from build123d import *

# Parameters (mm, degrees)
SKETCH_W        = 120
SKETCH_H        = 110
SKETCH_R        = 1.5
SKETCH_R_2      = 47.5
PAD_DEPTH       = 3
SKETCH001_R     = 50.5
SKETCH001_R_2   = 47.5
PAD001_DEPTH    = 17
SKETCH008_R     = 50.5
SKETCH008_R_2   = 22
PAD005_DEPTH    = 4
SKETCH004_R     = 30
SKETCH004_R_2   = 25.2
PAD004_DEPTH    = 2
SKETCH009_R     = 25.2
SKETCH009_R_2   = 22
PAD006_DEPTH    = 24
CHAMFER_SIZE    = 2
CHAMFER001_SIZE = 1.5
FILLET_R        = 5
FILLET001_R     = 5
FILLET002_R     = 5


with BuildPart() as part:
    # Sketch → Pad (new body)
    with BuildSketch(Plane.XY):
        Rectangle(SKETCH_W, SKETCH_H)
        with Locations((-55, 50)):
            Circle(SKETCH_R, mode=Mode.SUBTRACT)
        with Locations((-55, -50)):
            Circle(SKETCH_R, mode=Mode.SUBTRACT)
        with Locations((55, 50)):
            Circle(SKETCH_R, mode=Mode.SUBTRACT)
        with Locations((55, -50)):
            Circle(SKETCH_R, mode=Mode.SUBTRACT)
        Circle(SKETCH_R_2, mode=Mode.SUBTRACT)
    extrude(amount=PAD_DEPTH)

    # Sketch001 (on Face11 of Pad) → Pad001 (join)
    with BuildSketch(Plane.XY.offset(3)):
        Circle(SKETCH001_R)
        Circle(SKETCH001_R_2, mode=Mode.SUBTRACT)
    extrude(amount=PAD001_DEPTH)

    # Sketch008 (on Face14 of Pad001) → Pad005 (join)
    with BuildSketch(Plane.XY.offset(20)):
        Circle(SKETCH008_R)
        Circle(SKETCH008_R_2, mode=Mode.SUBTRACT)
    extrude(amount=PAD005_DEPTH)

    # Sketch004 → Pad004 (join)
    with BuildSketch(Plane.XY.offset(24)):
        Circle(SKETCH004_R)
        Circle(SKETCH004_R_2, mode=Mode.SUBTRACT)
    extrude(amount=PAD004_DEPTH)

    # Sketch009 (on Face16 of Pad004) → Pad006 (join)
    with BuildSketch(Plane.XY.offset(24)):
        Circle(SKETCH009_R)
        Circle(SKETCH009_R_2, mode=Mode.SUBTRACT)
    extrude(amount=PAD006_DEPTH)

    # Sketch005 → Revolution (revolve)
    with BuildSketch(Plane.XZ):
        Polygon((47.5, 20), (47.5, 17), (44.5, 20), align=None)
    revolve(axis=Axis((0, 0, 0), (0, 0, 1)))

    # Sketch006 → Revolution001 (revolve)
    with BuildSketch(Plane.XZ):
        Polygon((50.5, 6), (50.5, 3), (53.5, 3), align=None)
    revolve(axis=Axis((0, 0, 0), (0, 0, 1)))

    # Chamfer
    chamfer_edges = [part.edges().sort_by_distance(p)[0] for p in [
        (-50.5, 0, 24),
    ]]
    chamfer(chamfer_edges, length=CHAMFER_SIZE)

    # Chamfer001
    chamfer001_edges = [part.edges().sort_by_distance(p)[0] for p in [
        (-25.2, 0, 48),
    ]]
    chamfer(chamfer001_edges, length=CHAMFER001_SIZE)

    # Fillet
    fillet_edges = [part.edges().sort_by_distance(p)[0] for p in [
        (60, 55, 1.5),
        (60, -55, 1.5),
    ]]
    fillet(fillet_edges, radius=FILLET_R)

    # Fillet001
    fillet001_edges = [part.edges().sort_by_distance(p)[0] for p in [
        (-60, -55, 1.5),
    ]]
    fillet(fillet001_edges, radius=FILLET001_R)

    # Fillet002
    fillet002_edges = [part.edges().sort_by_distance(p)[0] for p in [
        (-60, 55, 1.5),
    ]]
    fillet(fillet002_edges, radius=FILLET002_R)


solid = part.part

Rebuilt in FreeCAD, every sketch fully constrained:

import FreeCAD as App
import Part
import Sketcher
from FreeCAD import Vector
Q = App.Units.Quantity


def edges_at(feature, points):
    """Names of the edges that pass closest to the given points."""
    edges = feature.Shape.Edges
    near = lambda p: min(range(len(edges)), key=lambda i: edges[i].distToShape(Part.Vertex(*p))[0])
    return sorted({f"Edge{near(p) + 1}" for p in points})

doc = App.newDocument("Part")
body = doc.addObject("PartDesign::Body", "Body")

# Sketch on XY plane
sketch1 = body.newObject("Sketcher::SketchObject", "Sketch")
sketch1.AttachmentSupport = (doc.getObject("XY_Plane"), [""])
sketch1.MapMode = "FlatFace"
sketch1.addGeometry(Part.LineSegment(Vector(-60, 55, 0), Vector(-60, -55, 0)), False)
sketch1.addGeometry(Part.LineSegment(Vector(-60, -55, 0), Vector(60, -55, 0)), False)
sketch1.addGeometry(Part.LineSegment(Vector(60, -55, 0), Vector(60, 55, 0)), False)
sketch1.addGeometry(Part.LineSegment(Vector(60, 55, 0), Vector(-60, 55, 0)), False)
sketch1.addGeometry(Part.Circle(Vector(-55, -50, 0), Vector(0, 0, 1), 1.5), False)
sketch1.addGeometry(Part.Circle(Vector(55, -50, 0), Vector(0, 0, 1), 1.5), False)
sketch1.addGeometry(Part.Circle(Vector(0, 0, 0), Vector(0, 0, 1), 47.5), False)
sketch1.addGeometry(Part.Circle(Vector(-55, 50, 0), Vector(0, 0, 1), 1.5), False)
sketch1.addGeometry(Part.Circle(Vector(55, 50, 0), Vector(0, 0, 1), 1.5), False)
sketch1.addConstraint(Sketcher.Constraint("Coincident", 0, 2, 1, 1))
sketch1.addConstraint(Sketcher.Constraint("Coincident", 1, 2, 2, 1))
sketch1.addConstraint(Sketcher.Constraint("Coincident", 2, 2, 3, 1))
sketch1.addConstraint(Sketcher.Constraint("Coincident", 3, 2, 0, 1))
sketch1.addConstraint(Sketcher.Constraint("Vertical", 0))
sketch1.addConstraint(Sketcher.Constraint("Horizontal", 1))
sketch1.addConstraint(Sketcher.Constraint("Vertical", 2))
sketch1.addConstraint(Sketcher.Constraint("Horizontal", 3))
sketch1.addConstraint(Sketcher.Constraint("Coincident", 6, 3, -1, 1))
sketch1.addConstraint(Sketcher.Constraint("Equal", 4, 5))
sketch1.addConstraint(Sketcher.Constraint("Equal", 5, 7))
sketch1.addConstraint(Sketcher.Constraint("Equal", 7, 8))
sketch1.addConstraint(Sketcher.Constraint("Symmetric", 5, 3, 7, 3, -1, 1))
sketch1.addConstraint(Sketcher.Constraint("Symmetric", 4, 3, 8, 3, -1, 1))
sketch1.addConstraint(Sketcher.Constraint("Symmetric", 0, 2, 2, 2, -1, 1))
sketch1.addConstraint(Sketcher.Constraint("Symmetric", 4, 3, 5, 3, -2))
sketch1.addConstraint(Sketcher.Constraint("Diameter", 4, Q("3 mm")))
sketch1.addConstraint(Sketcher.Constraint("Diameter", 6, Q("95 mm")))
sketch1.addConstraint(Sketcher.Constraint("DistanceX", 1, 1, 1, 2, Q("120 mm")))
sketch1.addConstraint(Sketcher.Constraint("DistanceY", 0, 2, 0, 1, Q("110 mm")))
sketch1.addConstraint(Sketcher.Constraint("DistanceX", 4, 3, -1, 1, Q("55 mm")))
sketch1.addConstraint(Sketcher.Constraint("DistanceY", 4, 3, -1, 1, Q("50 mm")))
pad1 = body.newObject("PartDesign::Pad", "Pad")
pad1.Profile = sketch1
pad1.Length = 3

# Sketch on XY plane
sketch2 = body.newObject("Sketcher::SketchObject", "Sketch001")
sketch2.AttachmentSupport = (doc.getObject("XY_Plane"), [""])
sketch2.MapMode = "FlatFace"
sketch2.AttachmentOffset = App.Placement(Vector(0, 0, 3), App.Rotation())
sketch2.addGeometry(Part.Circle(Vector(0, 0, 0), Vector(0, 0, 1), 50), False)
sketch2.addGeometry(Part.Circle(Vector(0, 0, 0), Vector(0, 0, 1), 48), False)
sketch2.addConstraint(Sketcher.Constraint("Coincident", 0, 3, -1, 1))
sketch2.addConstraint(Sketcher.Constraint("Coincident", 1, 3, -1, 1))
sketch2.addConstraint(Sketcher.Constraint("Diameter", 0, Q("101 mm")))
sketch2.addConstraint(Sketcher.Constraint("Diameter", 1, Q("95 mm")))
pad2 = body.newObject("PartDesign::Pad", "Pad001")
pad2.Profile = sketch2
pad2.Length = 17

# Sketch on XY plane
sketch3 = body.newObject("Sketcher::SketchObject", "Sketch002")
sketch3.AttachmentSupport = (doc.getObject("XY_Plane"), [""])
sketch3.MapMode = "FlatFace"
sketch3.AttachmentOffset = App.Placement(Vector(0, 0, 20), App.Rotation())
sketch3.addGeometry(Part.Circle(Vector(0, 0, 0), Vector(0, 0, 1), 50), False)
sketch3.addGeometry(Part.Circle(Vector(0, 0, 0), Vector(0, 0, 1), 22), False)
sketch3.addConstraint(Sketcher.Constraint("Coincident", 0, 3, -1, 1))
sketch3.addConstraint(Sketcher.Constraint("Coincident", 1, 3, -1, 1))
sketch3.addConstraint(Sketcher.Constraint("Diameter", 0, Q("101 mm")))
sketch3.addConstraint(Sketcher.Constraint("Diameter", 1, Q("44 mm")))
pad3 = body.newObject("PartDesign::Pad", "Pad002")
pad3.Profile = sketch3
pad3.Length = 4

# Sketch on XY plane
sketch4 = body.newObject("Sketcher::SketchObject", "Sketch003")
sketch4.AttachmentSupport = (doc.getObject("XY_Plane"), [""])
sketch4.MapMode = "FlatFace"
sketch4.AttachmentOffset = App.Placement(Vector(0, 0, 24), App.Rotation())
sketch4.addGeometry(Part.Circle(Vector(0, 0, 0), Vector(0, 0, 1), 30), False)
sketch4.addGeometry(Part.Circle(Vector(0, 0, 0), Vector(0, 0, 1), 25), False)
sketch4.addConstraint(Sketcher.Constraint("Coincident", 0, 3, -1, 1))
sketch4.addConstraint(Sketcher.Constraint("Coincident", 1, 3, -1, 1))
sketch4.addConstraint(Sketcher.Constraint("Diameter", 0, Q("60 mm")))
sketch4.addConstraint(Sketcher.Constraint("Diameter", 1, Q("50.4 mm")))
pad4 = body.newObject("PartDesign::Pad", "Pad003")
pad4.Profile = sketch4
pad4.Length = 2

# Sketch on XY plane
sketch5 = body.newObject("Sketcher::SketchObject", "Sketch004")
sketch5.AttachmentSupport = (doc.getObject("XY_Plane"), [""])
sketch5.MapMode = "FlatFace"
sketch5.AttachmentOffset = App.Placement(Vector(0, 0, 24), App.Rotation())
sketch5.addGeometry(Part.Circle(Vector(0, 0, 0), Vector(0, 0, 1), 25), False)
sketch5.addGeometry(Part.Circle(Vector(0, 0, 0), Vector(0, 0, 1), 22), False)
sketch5.addConstraint(Sketcher.Constraint("Coincident", 0, 3, -1, 1))
sketch5.addConstraint(Sketcher.Constraint("Coincident", 1, 3, -1, 1))
sketch5.addConstraint(Sketcher.Constraint("Diameter", 1, Q("44 mm")))
sketch5.addConstraint(Sketcher.Constraint("Diameter", 0, Q("50.4 mm")))
pad5 = body.newObject("PartDesign::Pad", "Pad004")
pad5.Profile = sketch5
pad5.Length = 24

# Sketch on XZ plane
sketch6 = body.newObject("Sketcher::SketchObject", "Sketch005")
sketch6.AttachmentSupport = (doc.getObject("XZ_Plane"), [""])
sketch6.MapMode = "FlatFace"
sketch6.addGeometry(Part.LineSegment(Vector(47.5, 17, 0), Vector(47.5, 20, 0)), False)
sketch6.addGeometry(Part.LineSegment(Vector(47.5, 20, 0), Vector(44.5, 20, 0)), False)
sketch6.addGeometry(Part.LineSegment(Vector(44.5, 20, 0), Vector(47.5, 17, 0)), False)
sketch6.addConstraint(Sketcher.Constraint("Coincident", 0, 2, 1, 1))
sketch6.addConstraint(Sketcher.Constraint("Coincident", 1, 2, 2, 1))
sketch6.addConstraint(Sketcher.Constraint("Coincident", 2, 2, 0, 1))
sketch6.addConstraint(Sketcher.Constraint("Vertical", 0))
sketch6.addConstraint(Sketcher.Constraint("Horizontal", 1))
sketch6.addConstraint(Sketcher.Constraint("Equal", 1, 0))
sketch6.addConstraint(Sketcher.Constraint("DistanceX", 1, 2, 1, 1, Q("3 mm")))
sketch6.addConstraint(Sketcher.Constraint("DistanceY", -1, 1, 0, 2, Q("20 mm")))
sketch6.addConstraint(Sketcher.Constraint("DistanceX", -1, 1, 0, 2, Q("47.5 mm")))
revolution = body.newObject("PartDesign::Revolution", "Revolution")
revolution.Profile = sketch6
revolution.ReferenceAxis = (sketch6, ["V_Axis"])
revolution.Angle = 360

# Sketch on XZ plane
sketch7 = body.newObject("Sketcher::SketchObject", "Sketch006")
sketch7.AttachmentSupport = (doc.getObject("XZ_Plane"), [""])
sketch7.MapMode = "FlatFace"
sketch7.addGeometry(Part.LineSegment(Vector(50.5, 6, 0), Vector(50.5, 3, 0)), False)
sketch7.addGeometry(Part.LineSegment(Vector(50.5, 3, 0), Vector(53.5, 3, 0)), False)
sketch7.addGeometry(Part.LineSegment(Vector(53.5, 3, 0), Vector(50.5, 6, 0)), False)
sketch7.addConstraint(Sketcher.Constraint("Coincident", 0, 2, 1, 1))
sketch7.addConstraint(Sketcher.Constraint("Coincident", 1, 2, 2, 1))
sketch7.addConstraint(Sketcher.Constraint("Coincident", 2, 2, 0, 1))
sketch7.addConstraint(Sketcher.Constraint("Vertical", 0))
sketch7.addConstraint(Sketcher.Constraint("Horizontal", 1))
sketch7.addConstraint(Sketcher.Constraint("Equal", 1, 0))
sketch7.addConstraint(Sketcher.Constraint("DistanceX", 1, 1, 1, 2, Q("3 mm")))
sketch7.addConstraint(Sketcher.Constraint("DistanceY", -1, 1, 0, 2, Q("3 mm")))
sketch7.addConstraint(Sketcher.Constraint("DistanceX", -1, 1, 0, 2, Q("50.5 mm")))
revolution2 = body.newObject("PartDesign::Revolution", "Revolution001")
revolution2.Profile = sketch7
revolution2.ReferenceAxis = (sketch7, ["V_Axis"])
revolution2.Angle = 360
doc.recompute()

chamfer = body.newObject("PartDesign::Chamfer", "Chamfer")
chamfer.Base = (revolution2, edges_at(revolution2, [(-50.5, 0, 24)]))
chamfer.Size = 2
doc.recompute()

chamfer2 = body.newObject("PartDesign::Chamfer", "Chamfer001")
chamfer2.Base = (chamfer, edges_at(chamfer, [(-25.2, 0, 48)]))
chamfer2.Size = 1.5
doc.recompute()

fillet = body.newObject("PartDesign::Fillet", "Fillet")
fillet.Base = (chamfer2, edges_at(chamfer2, [(60, 55, 1.5), (60, -55, 1.5)]))
fillet.Radius = 5
doc.recompute()

fillet2 = body.newObject("PartDesign::Fillet", "Fillet001")
fillet2.Base = (fillet, edges_at(fillet, [(-60, -55, 1.5)]))
fillet2.Radius = 5
doc.recompute()

fillet3 = body.newObject("PartDesign::Fillet", "Fillet002")
fillet3.Base = (fillet2, edges_at(fillet2, [(-60, 55, 1.5)]))
fillet3.Radius = 5

doc.recompute()
